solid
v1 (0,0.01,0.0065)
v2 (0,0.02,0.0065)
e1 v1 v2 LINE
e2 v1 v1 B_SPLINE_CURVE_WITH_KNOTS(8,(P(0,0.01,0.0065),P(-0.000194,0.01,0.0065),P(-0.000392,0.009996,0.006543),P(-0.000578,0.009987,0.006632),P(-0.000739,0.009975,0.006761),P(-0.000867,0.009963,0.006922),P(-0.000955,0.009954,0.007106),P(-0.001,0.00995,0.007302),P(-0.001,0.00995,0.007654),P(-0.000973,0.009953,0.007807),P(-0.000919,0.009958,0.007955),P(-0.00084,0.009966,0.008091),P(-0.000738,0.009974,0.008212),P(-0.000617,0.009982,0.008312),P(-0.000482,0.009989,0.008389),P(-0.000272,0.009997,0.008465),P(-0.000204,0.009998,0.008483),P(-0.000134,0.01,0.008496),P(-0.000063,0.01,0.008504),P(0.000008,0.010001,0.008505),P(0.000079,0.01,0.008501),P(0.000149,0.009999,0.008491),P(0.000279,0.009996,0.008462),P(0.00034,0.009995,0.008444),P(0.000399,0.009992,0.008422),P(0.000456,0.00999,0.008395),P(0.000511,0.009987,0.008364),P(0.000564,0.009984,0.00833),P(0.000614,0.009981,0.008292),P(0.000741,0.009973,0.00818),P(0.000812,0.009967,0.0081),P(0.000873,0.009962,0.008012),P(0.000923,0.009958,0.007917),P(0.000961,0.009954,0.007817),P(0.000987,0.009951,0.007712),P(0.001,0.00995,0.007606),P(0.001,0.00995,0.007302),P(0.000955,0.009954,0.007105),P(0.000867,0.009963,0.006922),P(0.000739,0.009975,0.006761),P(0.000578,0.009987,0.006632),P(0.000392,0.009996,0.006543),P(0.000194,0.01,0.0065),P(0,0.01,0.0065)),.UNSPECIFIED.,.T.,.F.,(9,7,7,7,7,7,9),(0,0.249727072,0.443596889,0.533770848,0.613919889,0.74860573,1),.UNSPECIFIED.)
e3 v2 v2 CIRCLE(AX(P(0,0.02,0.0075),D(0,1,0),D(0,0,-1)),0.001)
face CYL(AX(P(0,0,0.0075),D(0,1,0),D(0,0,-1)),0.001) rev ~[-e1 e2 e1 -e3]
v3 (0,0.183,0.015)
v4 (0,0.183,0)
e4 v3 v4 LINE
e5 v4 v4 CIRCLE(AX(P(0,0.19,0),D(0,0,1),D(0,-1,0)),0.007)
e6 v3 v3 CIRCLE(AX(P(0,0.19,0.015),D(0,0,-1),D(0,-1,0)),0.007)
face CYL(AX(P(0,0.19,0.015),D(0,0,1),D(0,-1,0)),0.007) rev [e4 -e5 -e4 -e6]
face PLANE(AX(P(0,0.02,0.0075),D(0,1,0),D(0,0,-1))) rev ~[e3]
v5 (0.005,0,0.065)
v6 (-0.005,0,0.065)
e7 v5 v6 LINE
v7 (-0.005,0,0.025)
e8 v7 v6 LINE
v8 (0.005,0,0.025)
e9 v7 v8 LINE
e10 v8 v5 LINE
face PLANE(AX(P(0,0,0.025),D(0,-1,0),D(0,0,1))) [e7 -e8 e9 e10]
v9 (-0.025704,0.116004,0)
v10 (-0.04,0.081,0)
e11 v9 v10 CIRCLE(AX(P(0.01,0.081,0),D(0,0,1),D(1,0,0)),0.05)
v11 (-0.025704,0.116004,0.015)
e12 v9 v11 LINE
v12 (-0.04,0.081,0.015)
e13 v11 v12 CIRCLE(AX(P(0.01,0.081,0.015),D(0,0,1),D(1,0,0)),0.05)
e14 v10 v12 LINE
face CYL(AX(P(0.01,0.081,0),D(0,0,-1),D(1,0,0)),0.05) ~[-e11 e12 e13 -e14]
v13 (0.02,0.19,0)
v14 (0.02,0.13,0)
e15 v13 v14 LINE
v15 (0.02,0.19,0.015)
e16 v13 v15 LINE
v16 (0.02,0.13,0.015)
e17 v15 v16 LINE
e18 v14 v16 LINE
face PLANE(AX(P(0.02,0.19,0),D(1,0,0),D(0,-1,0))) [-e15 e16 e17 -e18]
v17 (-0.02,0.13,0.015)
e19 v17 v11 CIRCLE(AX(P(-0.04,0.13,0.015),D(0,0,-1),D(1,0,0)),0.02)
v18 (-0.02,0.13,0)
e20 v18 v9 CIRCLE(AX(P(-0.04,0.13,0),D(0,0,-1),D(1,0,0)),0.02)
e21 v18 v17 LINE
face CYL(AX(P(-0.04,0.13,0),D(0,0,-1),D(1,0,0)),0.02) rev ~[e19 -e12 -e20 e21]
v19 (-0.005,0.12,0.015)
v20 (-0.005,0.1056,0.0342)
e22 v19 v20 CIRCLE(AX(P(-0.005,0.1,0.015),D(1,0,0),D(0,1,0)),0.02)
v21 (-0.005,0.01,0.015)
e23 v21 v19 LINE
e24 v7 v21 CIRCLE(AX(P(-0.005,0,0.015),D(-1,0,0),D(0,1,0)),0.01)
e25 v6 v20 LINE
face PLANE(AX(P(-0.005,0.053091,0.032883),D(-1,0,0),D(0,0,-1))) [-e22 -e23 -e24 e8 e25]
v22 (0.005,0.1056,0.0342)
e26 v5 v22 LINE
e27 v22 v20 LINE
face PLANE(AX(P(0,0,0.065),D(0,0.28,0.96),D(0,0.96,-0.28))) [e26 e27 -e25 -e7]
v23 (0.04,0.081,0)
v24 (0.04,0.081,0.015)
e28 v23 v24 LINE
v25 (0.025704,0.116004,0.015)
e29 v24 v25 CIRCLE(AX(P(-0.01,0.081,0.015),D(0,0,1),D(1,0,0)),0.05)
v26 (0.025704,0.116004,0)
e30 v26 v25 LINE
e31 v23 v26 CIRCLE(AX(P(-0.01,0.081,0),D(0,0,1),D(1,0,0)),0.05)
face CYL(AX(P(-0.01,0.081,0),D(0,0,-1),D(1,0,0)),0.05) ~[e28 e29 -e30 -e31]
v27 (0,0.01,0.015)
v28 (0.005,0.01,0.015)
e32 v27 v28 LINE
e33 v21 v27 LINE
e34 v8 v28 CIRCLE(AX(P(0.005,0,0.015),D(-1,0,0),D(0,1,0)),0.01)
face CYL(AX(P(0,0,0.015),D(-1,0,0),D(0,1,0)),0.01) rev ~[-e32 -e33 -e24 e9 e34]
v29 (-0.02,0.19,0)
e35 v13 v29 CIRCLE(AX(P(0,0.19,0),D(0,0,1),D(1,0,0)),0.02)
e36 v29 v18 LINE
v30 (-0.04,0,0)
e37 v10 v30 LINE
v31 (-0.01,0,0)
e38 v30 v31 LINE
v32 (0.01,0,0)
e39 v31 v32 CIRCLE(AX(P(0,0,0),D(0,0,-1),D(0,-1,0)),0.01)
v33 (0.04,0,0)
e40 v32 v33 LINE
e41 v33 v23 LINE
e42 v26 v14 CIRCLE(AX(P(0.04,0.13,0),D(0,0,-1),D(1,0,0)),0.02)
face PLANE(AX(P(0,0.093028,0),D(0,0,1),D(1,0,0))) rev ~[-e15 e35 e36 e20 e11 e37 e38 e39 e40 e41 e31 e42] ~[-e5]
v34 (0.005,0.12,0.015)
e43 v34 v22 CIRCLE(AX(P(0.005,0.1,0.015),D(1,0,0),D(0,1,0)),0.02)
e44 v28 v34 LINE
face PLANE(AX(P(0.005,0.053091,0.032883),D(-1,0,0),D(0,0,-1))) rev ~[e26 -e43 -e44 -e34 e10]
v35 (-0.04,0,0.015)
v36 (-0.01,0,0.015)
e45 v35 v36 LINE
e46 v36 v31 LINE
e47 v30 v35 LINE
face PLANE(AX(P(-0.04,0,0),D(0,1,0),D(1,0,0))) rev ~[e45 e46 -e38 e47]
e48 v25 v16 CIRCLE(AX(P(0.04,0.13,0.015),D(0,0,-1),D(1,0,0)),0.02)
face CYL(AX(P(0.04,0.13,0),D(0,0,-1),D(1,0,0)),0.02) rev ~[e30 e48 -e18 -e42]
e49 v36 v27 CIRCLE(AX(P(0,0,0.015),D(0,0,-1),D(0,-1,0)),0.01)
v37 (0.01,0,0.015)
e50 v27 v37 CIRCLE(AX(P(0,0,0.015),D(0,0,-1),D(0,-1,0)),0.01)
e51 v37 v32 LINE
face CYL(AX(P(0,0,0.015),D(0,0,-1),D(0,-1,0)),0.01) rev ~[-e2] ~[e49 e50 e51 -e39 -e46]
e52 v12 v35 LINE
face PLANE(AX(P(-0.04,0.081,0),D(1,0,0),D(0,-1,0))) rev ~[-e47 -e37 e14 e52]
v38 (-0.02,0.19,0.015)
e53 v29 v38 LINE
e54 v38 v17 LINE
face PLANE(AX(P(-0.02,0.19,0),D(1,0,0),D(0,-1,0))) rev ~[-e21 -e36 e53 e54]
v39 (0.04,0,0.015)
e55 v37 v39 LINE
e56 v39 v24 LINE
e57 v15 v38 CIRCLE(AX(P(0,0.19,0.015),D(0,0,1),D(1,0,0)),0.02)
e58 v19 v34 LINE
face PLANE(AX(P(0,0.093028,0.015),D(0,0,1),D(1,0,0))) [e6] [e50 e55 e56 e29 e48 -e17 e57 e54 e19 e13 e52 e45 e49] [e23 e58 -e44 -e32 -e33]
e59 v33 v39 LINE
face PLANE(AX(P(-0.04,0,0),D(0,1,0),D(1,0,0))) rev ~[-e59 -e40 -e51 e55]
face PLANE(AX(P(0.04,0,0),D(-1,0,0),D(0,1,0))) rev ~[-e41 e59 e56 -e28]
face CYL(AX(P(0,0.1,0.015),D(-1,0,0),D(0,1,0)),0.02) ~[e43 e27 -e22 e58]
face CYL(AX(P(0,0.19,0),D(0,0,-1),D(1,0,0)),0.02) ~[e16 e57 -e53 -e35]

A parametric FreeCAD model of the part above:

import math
import FreeCAD as App
import Part
import Sketcher
from FreeCAD import Vector
Q = App.Units.Quantity

doc = App.newDocument("Part")
body = doc.addObject("PartDesign::Body", "Body")

# Sketch on XY plane
sketch1 = body.newObject("Sketcher::SketchObject", "Sketch")
sketch1.AttachmentSupport = (doc.getObject("XY_Plane"), [""])
sketch1.MapMode = "FlatFace"
sketch1.addGeometry(Part.LineSegment(Vector(-0.04, 0.081, 0), Vector(-0.04, 0, 0)), False)
sketch1.addGeometry(Part.LineSegment(Vector(-0.04, 0, 0), Vector(0.04, 0, 0)), False)
sketch1.addGeometry(Part.LineSegment(Vector(0.04, 0, 0), Vector(0.04, 0.081, 0)), False)
sketch1.addGeometry(Part.ArcOfCircle(Part.Circle(Vector(-0.01, 0.081, 0), Vector(0, 0, 1), 0.05), math.radians(0), math.radians(44)), False)
sketch1.addGeometry(Part.ArcOfCircle(Part.Circle(Vector(0.04, 0.13, 0), Vector(0, 0, 1), 0.02), math.radians(180), math.radians(224)), False)
sketch1.addGeometry(Part.LineSegment(Vector(0.02, 0.13, 0), Vector(0.02, 0.19, 0)), False)
sketch1.addGeometry(Part.ArcOfCircle(Part.Circle(Vector(0, 0.19, 0), Vector(0, 0, 1), 0.02), math.radians(0), math.radians(180)), False)
sketch1.addGeometry(Part.LineSegment(Vector(-0.02, 0.19, 0), Vector(-0.02, 0.13, 0)), False)
sketch1.addGeometry(Part.ArcOfCircle(Part.Circle(Vector(-0.04, 0.13, 0), Vector(0, 0, 1), 0.02), math.radians(-44), math.radians(0)), False)
sketch1.addGeometry(Part.ArcOfCircle(Part.Circle(Vector(0.01, 0.081, 0), Vector(0, 0, 1), 0.05), math.radians(136), math.radians(180)), False)
sketch1.addConstraint(Sketcher.Constraint("Coincident", 0, 2, 1, 1))
sketch1.addConstraint(Sketcher.Constraint("Coincident", 1, 2, 2, 1))
sketch1.addConstraint(Sketcher.Constraint("Tangent", 2, 2, 3, 1))
sketch1.addConstraint(Sketcher.Constraint("Coincident", 3, 2, 4, 2))
sketch1.addConstraint(Sketcher.Constraint("Tangent", 4, 1, 5, 1))
sketch1.addConstraint(Sketcher.Constraint("Tangent", 5, 2, 6, 1))
sketch1.addConstraint(Sketcher.Constraint("Tangent", 6, 2, 7, 1))
sketch1.addConstraint(Sketcher.Constraint("Tangent", 7, 2, 8, 2))
sketch1.addConstraint(Sketcher.Constraint("Coincident", 8, 1, 9, 1))
sketch1.addConstraint(Sketcher.Constraint("Tangent", 9, 2, 0, 1))
sketch1.addConstraint(Sketcher.Constraint("Vertical", 0))
sketch1.addConstraint(Sketcher.Constraint("Horizontal", 1))
sketch1.addConstraint(Sketcher.Constraint("Vertical", 2))
sketch1.addConstraint(Sketcher.Constraint("Vertical", 5))
sketch1.addConstraint(Sketcher.Constraint("Vertical", 7))
sketch1.addConstraint(Sketcher.Constraint("Equal", 4, 6))
sketch1.addConstraint(Sketcher.Constraint("Equal", 6, 8))
sketch1.addConstraint(Sketcher.Constraint("Equal", 3, 9))
sketch1.addConstraint(Sketcher.Constraint("Symmetric", 0, 2, 1, 2, -1, 1))
sketch1.addConstraint(Sketcher.Constraint("Symmetric", 4, 3, 8, 3, -2))
sketch1.addConstraint(Sketcher.Constraint("Horizontal", 3, 2, 8, 1))
sketch1.addConstraint(Sketcher.Constraint("Vertical", 8, 3, 0, 2))
sketch1.addConstraint(Sketcher.Constraint("Radius", 4, Q("0.02 mm")))
sketch1.addConstraint(Sketcher.Constraint("Radius", 3, Q("0.05 mm")))
sketch1.addConstraint(Sketcher.Constraint("DistanceY", 5, 1, 5, 2, Q("0.06 mm")))
sketch1.addConstraint(Sketcher.Constraint("DistanceY", 0, 2, 0, 1, Q("0.081 mm")))
sketch1.addConstraint(Sketcher.Constraint("DistanceY", -1, 1, 3, 2, Q("0.116 mm")))
pad1 = body.newObject("PartDesign::Pad", "Pad")
pad1.Profile = sketch1
pad1.Length = 0.015

# Sketch on XZ plane
sketch2 = body.newObject("Sketcher::SketchObject", "Sketch001")
sketch2.AttachmentSupport = (doc.getObject("XZ_Plane"), [""])
sketch2.MapMode = "FlatFace"
sketch2.addGeometry(Part.Circle(Vector(0, 0.0075, 0), Vector(0, 0, 1), 0.001), False)
sketch2.addConstraint(Sketcher.Constraint("PointOnObject", 0, 3, -2))
sketch2.addConstraint(Sketcher.Constraint("Diameter", 0, Q("0.002 mm")))
sketch2.addConstraint(Sketcher.Constraint("DistanceY", -1, 1, 0, 3, Q("0.0075 mm")))
doc.recompute()
hole = body.newObject("PartDesign::Hole", "Hole")
hole.Profile = sketch2
hole.ThreadType = "None"
hole.Diameter = 0.002
hole.DepthType = "Dimension"
hole.Depth = 0.02
hole.DrillPoint = "Flat"

# Sketch on XY plane
sketch3 = body.newObject("Sketcher::SketchObject", "Sketch002")
sketch3.AttachmentSupport = (doc.getObject("XY_Plane"), [""])
sketch3.MapMode = "FlatFace"
sketch3.AttachmentOffset = App.Placement(Vector(0, 0, 0.015), App.Rotation())
sketch3.addGeometry(Part.Circle(Vector(0, 0.19, 0), Vector(0, 0, 1), 0.007), False)
sketch3.addConstraint(Sketcher.Constraint("PointOnObject", 0, 3, -2))
sketch3.addConstraint(Sketcher.Constraint("Diameter", 0, Q("0.014 mm")))
sketch3.addConstraint(Sketcher.Constraint("DistanceY", -1, 1, 0, 3, Q("0.19 mm")))
doc.recompute()
hole2 = body.newObject("PartDesign::Hole", "Hole001")
hole2.Profile = sketch3
hole2.ThreadType = "None"
hole2.Diameter = 0.014
hole2.DepthType = "ThroughAll"

# Sketch on XY plane
sketch4 = body.newObject("Sketcher::SketchObject", "Sketch003")
sketch4.AttachmentSupport = (doc.getObject("XY_Plane"), [""])
sketch4.MapMode = "FlatFace"
sketch4.AttachmentOffset = App.Placement(Vector(0, 0, 0.015), App.Rotation())
sketch4.addGeometry(Part.Circle(Vector(0, 0, 0), Vector(0, 0, 1), 0.01), False)
sketch4.addConstraint(Sketcher.Constraint("Coincident", 0, 3, -1, 1))
sketch4.addConstraint(Sketcher.Constraint("Diameter", 0, Q("0.02 mm")))
doc.recompute()
hole3 = body.newObject("PartDesign::Hole", "Hole002")
hole3.Profile = sketch4
hole3.ThreadType = "None"
hole3.Diameter = 0.02
hole3.DepthType = "Dimension"
hole3.Depth = 3.175
hole3.DrillPoint = "Flat"

# Sketch on YZ plane
sketch5 = body.newObject("Sketcher::SketchObject", "Sketch004")
sketch5.AttachmentSupport = (doc.getObject("YZ_Plane"), [""])
sketch5.MapMode = "FlatFace"
sketch5.addGeometry(Part.LineSegment(Vector(0, 0.065, 0), Vector(0, 0.025, 0)), False)
sketch5.addGeometry(Part.ArcOfCircle(Part.Circle(Vector(0, 0.015, 0), Vector(0, 0, 1), 0.01), math.radians(0), math.radians(90)), False)
sketch5.addGeometry(Part.LineSegment(Vector(0.01, 0.015, 0), Vector(0.12, 0.015, 0)), False)
sketch5.addGeometry(Part.ArcOfCircle(Part.Circle(Vector(0.1, 0.015, 0), Vector(0, 0, 1), 0.02), math.radians(0), math.radians(74)), False)
sketch5.addGeometry(Part.LineSegment(Vector(0.106, 0.034, 0), Vector(0, 0.065, 0)), False)
sketch5.addConstraint(Sketcher.Constraint("Coincident", 0, 2, 1, 2))
sketch5.addConstraint(Sketcher.Constraint("Coincident", 1, 1, 2, 1))
sketch5.addConstraint(Sketcher.Constraint("Coincident", 2, 2, 3, 1))
sketch5.addConstraint(Sketcher.Constraint("Tangent", 3, 2, 4, 1))
sketch5.addConstraint(Sketcher.Constraint("Coincident", 4, 2, 0, 1))
sketch5.addConstraint(Sketcher.Constraint("Vertical", 0))
sketch5.addConstraint(Sketcher.Constraint("Horizontal", 2))
sketch5.addConstraint(Sketcher.Constraint("PointOnObject", 1, 3, -2))
sketch5.addConstraint(Sketcher.Constraint("PointOnObject", 0, 2, -2))
sketch5.addConstraint(Sketcher.Constraint("Horizontal", 1, 3, 3, 3))
sketch5.addConstraint(Sketcher.Constraint("Horizontal", 3, 3, 1, 1))
sketch5.addConstraint(Sketcher.Constraint("Radius", 1, Q("0.01 mm")))
sketch5.addConstraint(Sketcher.Constraint("Radius", 3, Q("0.02 mm")))
sketch5.addConstraint(Sketcher.Constraint("DistanceX", 2, 1, 2, 2, Q("0.11 mm")))
sketch5.addConstraint(Sketcher.Constraint("DistanceY", 0, 2, 0, 1, Q("0.04 mm")))
sketch5.addConstraint(Sketcher.Constraint("DistanceY", -1, 1, 1, 3, Q("0.015 mm")))
pad2 = body.newObject("PartDesign::Pad", "Pad001")
pad2.Profile = sketch5
pad2.Length = 0.01
pad2.Midplane = True

doc.recompute()
